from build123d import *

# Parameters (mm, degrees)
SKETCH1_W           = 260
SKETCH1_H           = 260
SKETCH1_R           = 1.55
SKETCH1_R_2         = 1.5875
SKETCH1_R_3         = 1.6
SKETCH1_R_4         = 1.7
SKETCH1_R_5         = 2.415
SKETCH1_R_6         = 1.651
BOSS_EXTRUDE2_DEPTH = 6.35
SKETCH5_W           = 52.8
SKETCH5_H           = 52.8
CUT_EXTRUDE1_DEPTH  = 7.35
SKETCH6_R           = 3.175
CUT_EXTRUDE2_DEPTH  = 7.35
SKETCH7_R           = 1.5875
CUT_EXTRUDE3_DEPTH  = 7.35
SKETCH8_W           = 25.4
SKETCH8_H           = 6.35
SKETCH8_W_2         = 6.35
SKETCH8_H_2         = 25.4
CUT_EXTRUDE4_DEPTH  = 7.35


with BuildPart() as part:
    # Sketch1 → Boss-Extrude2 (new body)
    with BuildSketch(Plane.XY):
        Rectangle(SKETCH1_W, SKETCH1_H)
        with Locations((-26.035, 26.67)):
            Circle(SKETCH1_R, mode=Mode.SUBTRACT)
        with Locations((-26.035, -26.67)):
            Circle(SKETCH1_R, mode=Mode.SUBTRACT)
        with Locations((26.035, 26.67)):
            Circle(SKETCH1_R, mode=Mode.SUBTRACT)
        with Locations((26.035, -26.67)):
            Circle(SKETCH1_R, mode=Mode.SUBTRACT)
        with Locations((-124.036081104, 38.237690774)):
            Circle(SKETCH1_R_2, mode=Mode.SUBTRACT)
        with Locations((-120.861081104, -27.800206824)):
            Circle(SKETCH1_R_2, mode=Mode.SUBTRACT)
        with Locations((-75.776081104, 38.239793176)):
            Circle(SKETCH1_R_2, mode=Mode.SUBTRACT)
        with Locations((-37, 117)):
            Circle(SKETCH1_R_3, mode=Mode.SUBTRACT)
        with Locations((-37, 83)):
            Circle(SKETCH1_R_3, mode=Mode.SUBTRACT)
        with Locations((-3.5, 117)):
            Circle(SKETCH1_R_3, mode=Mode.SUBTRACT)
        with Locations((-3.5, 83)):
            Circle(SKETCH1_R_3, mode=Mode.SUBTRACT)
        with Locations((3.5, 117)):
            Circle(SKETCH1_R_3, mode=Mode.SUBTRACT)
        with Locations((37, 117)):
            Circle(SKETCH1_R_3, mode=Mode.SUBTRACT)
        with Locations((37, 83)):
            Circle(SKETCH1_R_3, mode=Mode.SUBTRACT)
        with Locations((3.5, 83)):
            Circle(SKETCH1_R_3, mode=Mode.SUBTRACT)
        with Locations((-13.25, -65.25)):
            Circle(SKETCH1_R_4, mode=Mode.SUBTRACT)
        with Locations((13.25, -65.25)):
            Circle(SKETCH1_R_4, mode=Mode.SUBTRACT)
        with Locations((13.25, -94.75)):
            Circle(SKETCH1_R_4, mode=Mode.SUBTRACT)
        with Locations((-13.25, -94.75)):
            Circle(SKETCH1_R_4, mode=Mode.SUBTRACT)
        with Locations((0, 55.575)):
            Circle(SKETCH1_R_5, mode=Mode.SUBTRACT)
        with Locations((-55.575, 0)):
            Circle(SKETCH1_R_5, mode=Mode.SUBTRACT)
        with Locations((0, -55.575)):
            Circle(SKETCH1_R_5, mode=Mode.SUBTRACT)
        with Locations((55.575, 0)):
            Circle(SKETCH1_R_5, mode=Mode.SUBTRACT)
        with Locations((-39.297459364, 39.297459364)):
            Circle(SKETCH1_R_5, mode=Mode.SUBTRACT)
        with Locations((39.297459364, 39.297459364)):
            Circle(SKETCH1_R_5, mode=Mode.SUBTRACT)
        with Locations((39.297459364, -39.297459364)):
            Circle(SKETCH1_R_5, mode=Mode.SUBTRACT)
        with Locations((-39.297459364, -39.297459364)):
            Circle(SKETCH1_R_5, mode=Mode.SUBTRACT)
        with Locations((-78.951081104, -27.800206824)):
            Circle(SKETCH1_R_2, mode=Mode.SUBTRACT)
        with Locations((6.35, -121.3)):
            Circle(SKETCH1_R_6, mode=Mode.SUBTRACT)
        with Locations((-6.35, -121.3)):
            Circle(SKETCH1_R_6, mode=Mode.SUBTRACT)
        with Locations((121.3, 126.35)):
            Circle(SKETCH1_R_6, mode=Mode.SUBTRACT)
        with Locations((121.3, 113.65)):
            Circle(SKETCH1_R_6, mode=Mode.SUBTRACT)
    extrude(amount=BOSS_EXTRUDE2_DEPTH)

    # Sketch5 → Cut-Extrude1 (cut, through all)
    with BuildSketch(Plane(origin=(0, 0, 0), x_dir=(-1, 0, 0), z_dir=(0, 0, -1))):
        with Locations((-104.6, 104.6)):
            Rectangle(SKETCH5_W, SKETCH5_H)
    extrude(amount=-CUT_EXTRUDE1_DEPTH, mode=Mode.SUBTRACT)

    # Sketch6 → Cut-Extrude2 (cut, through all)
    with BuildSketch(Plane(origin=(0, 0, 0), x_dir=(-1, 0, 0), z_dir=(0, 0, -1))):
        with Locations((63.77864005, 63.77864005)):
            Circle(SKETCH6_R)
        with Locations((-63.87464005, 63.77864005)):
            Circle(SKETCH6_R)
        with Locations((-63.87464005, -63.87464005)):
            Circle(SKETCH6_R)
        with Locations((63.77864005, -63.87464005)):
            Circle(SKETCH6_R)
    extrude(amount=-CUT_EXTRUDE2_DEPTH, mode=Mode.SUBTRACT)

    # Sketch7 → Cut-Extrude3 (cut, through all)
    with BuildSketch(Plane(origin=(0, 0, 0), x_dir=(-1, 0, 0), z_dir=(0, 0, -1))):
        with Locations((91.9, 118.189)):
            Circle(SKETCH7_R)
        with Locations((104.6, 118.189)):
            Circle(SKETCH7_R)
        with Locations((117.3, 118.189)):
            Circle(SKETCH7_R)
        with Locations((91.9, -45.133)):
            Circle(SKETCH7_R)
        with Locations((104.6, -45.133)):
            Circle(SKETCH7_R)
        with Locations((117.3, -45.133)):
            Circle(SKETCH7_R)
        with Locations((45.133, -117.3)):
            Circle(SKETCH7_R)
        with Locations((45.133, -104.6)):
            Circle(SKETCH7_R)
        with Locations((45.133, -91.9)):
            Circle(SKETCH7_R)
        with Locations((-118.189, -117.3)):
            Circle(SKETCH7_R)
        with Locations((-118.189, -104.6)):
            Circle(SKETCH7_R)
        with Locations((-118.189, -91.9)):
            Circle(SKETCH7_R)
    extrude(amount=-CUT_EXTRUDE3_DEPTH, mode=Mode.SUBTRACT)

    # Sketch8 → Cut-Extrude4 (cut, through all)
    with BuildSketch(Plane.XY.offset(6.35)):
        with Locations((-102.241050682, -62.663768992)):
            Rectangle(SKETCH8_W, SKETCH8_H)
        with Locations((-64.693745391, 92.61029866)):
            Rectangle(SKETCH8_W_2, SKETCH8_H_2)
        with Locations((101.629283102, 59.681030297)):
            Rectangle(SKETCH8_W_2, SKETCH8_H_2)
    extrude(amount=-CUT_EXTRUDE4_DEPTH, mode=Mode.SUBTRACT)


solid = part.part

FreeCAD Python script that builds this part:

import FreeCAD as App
import Part
import Sketcher

V = App.Vector

doc = App.newDocument("Part")
body = doc.addObject("PartDesign::Body", "Body")

# Sketch on XY plane
sketch1 = body.newObject("Sketcher::SketchObject", "Sketch")
sketch1.AttachmentSupport = (doc.getObject("XY_Plane"), [""])
sketch1.MapMode = "FlatFace"
sketch1.addGeometry([
    Part.LineSegment(V(-130, 130, 0), V(-130, -130, 0)),  # 0
    Part.LineSegment(V(-130, -130, 0), V(130, -130, 0)),  # 1
    Part.LineSegment(V(130, -130, 0), V(130, 130, 0)),  # 2
    Part.LineSegment(V(130, 130, 0), V(-130, 130, 0)),  # 3
    Part.Circle(V(-6.35, -121.3, 0), V(0, 0, 1), 1.651),  # 4
    Part.Circle(V(-13.25, -94.75, 0), V(0, 0, 1), 1.7),  # 5
    Part.Circle(V(-13.25, -65.25, 0), V(0, 0, 1), 1.7),  # 6
    Part.Circle(V(-120.861081, -27.800207, 0), V(0, 0, 1), 1.5875),  # 7
    Part.Circle(V(-78.951081, -27.800207, 0), V(0, 0, 1), 1.5875),  # 8
    Part.Circle(V(-39.297459, -39.297459, 0), V(0, 0, 1), 2.415),  # 9
    Part.Circle(V(-55.575, 0, 0), V(0, 0, 1), 2.415),  # 10
    Part.Circle(V(-26.035, -26.67, 0), V(0, 0, 1), 1.55),  # 11
    Part.Circle(V(6.35, -121.3, 0), V(0, 0, 1), 1.651),  # 12
    Part.Circle(V(13.25, -94.75, 0), V(0, 0, 1), 1.7),  # 13
    Part.Circle(V(13.25, -65.25, 0), V(0, 0, 1), 1.7),  # 14
    Part.Circle(V(0, -55.575, 0), V(0, 0, 1), 2.415),  # 15
    Part.Circle(V(39.297459, -39.297459, 0), V(0, 0, 1), 2.415),  # 16
    Part.Circle(V(26.035, -26.67, 0), V(0, 0, 1), 1.55),  # 17
    Part.Circle(V(55.575, 0, 0), V(0, 0, 1), 2.415),  # 18
    Part.Circle(V(-124.036081, 38.237691, 0), V(0, 0, 1), 1.5875),  # 19
    Part.Circle(V(-75.776081, 38.239793, 0), V(0, 0, 1), 1.5875),  # 20
    Part.Circle(V(-26.035, 26.67, 0), V(0, 0, 1), 1.55),  # 21
    Part.Circle(V(-39.297459, 39.297459, 0), V(0, 0, 1), 2.415),  # 22
    Part.Circle(V(-37, 83, 0), V(0, 0, 1), 1.6),  # 23
    Part.Circle(V(-3.5, 83, 0), V(0, 0, 1), 1.6),  # 24
    Part.Circle(V(-37, 117, 0), V(0, 0, 1), 1.6),  # 25
    Part.Circle(V(-3.5, 117, 0), V(0, 0, 1), 1.6),  # 26
    Part.Circle(V(26.035, 26.67, 0), V(0, 0, 1), 1.55),  # 27
    Part.Circle(V(0, 55.575, 0), V(0, 0, 1), 2.415),  # 28
    Part.Circle(V(39.297459, 39.297459, 0), V(0, 0, 1), 2.415),  # 29
    Part.Circle(V(3.5, 83, 0), V(0, 0, 1), 1.6),  # 30
    Part.Circle(V(37, 83, 0), V(0, 0, 1), 1.6),  # 31
    Part.Circle(V(3.5, 117, 0), V(0, 0, 1), 1.6),  # 32
    Part.Circle(V(37, 117, 0), V(0, 0, 1), 1.6),  # 33
    Part.Circle(V(121.3, 113.65, 0), V(0, 0, 1), 1.651),  # 34
    Part.Circle(V(121.3, 126.35, 0), V(0, 0, 1), 1.651),  # 35
], False)
sketch1.addConstraint([
    Sketcher.Constraint("Coincident", 0, 2, 1, 1),
    Sketcher.Constraint("Coincident", 1, 2, 2, 1),
    Sketcher.Constraint("Coincident", 2, 2, 3, 1),
    Sketcher.Constraint("Coincident", 3, 2, 0, 1),
    Sketcher.Constraint("Vertical", 0),
    Sketcher.Constraint("Horizontal", 1),
    Sketcher.Constraint("Vertical", 2),
    Sketcher.Constraint("Horizontal", 3),
    Sketcher.Constraint("Equal", 5, 6),
    Sketcher.Constraint("Equal", 7, 8),
    Sketcher.Constraint("Equal", 9, 10),
    Sketcher.Constraint("Equal", 4, 12),
    Sketcher.Constraint("Equal", 6, 13),
    Sketcher.Constraint("Equal", 13, 14),
    Sketcher.Constraint("Equal", 10, 15),
    Sketcher.Constraint("Equal", 15, 16),
    Sketcher.Constraint("Equal", 11, 17),
    Sketcher.Constraint("Equal", 16, 18),
    Sketcher.Constraint("Equal", 8, 19),
    Sketcher.Constraint("Equal", 19, 20),
    Sketcher.Constraint("Equal", 17, 21),
    Sketcher.Constraint("Equal", 18, 22),
    Sketcher.Constraint("Equal", 23, 24),
    Sketcher.Constraint("Equal", 24, 25),
    Sketcher.Constraint("Equal", 25, 26),
    Sketcher.Constraint("Equal", 21, 27),
    Sketcher.Constraint("Equal", 22, 28),
    Sketcher.Constraint("Equal", 28, 29),
    Sketcher.Constraint("Equal", 26, 30),
    Sketcher.Constraint("Equal", 30, 31),
    Sketcher.Constraint("Equal", 31, 32),
    Sketcher.Constraint("Equal", 32, 33),
    Sketcher.Constraint("Equal", 12, 34),
    Sketcher.Constraint("Equal", 34, 35),
    Sketcher.Constraint("Symmetric", 10, 3, 18, 3, -1, 1),
    Sketcher.Constraint("Symmetric", 17, 3, 21, 3, -1, 1),
    Sketcher.Constraint("Symmetric", 16, 3, 22, 3, -1, 1),
    Sketcher.Constraint("Symmetric", 11, 3, 27, 3, -1, 1),
    Sketcher.Constraint("Symmetric", 15, 3, 28, 3, -1, 1),
    Sketcher.Constraint("Symmetric", 9, 3, 29, 3, -1, 1),
    Sketcher.Constraint("Symmetric", 0, 2, 2, 2, -1, 1),
    Sketcher.Constraint("Symmetric", 4, 3, 12, 3, -2),
    Sketcher.Constraint("Symmetric", 5, 3, 13, 3, -2),
    Sketcher.Constraint("Symmetric", 6, 3, 14, 3, -2),
    Sketcher.Constraint("Symmetric", 9, 3, 16, 3, -2),
    Sketcher.Constraint("Symmetric", 11, 3, 17, 3, -2),
    Sketcher.Constraint("Symmetric", 24, 3, 30, 3, -2),
    Sketcher.Constraint("Symmetric", 23, 3, 31, 3, -2),
    Sketcher.Constraint("Symmetric", 26, 3, 32, 3, -2),
    Sketcher.Constraint("Symmetric", 25, 3, 33, 3, -2),
    Sketcher.Constraint("PointOnObject", 10, 3, -1),
    Sketcher.Constraint("PointOnObject", 15, 3, -2),
    Sketcher.Constraint("Horizontal", 7, 3, 8, 3),
    Sketcher.Constraint("Horizontal", 23, 3, 24, 3),
    Sketcher.Constraint("Horizontal", 25, 3, 26, 3),
    Sketcher.Constraint("Vertical", 5, 3, 6, 3),
    Sketcher.Constraint("Vertical", 23, 3, 25, 3),
    Sketcher.Constraint("Vertical", 24, 3, 26, 3),
    Sketcher.Constraint("Vertical", 34, 3, 35, 3),
    Sketcher.Constraint("Equal", 3, 0),
    Sketcher.Constraint("Diameter", 5, 3.4),
    Sketcher.Constraint("Diameter", 11, 3.1),
    Sketcher.Constraint("Diameter", 23, 3.2),
    Sketcher.Constraint("Diameter", 9, 4.83),
    Sketcher.Constraint("DistanceX", 1, 1, 1, 2, 260.0),
    Sketcher.Constraint("Diameter", 4, 3.302),
    Sketcher.Constraint("Diameter", 7, 3.175),
    Sketcher.Constraint("DistanceX", 23, 3, -1, 1, 37.0),
    Sketcher.Constraint("DistanceY", -1, 1, 23, 3, 83.0),
    Sketcher.Constraint("DistanceY", -1, 1, 25, 3, 117.0),
    Sketcher.Constraint("DistanceX", 24, 3, 30, 3, 7.0),
    Sketcher.Constraint("DistanceY", 4, 3, -1, 1, 121.3),
    Sketcher.Constraint("DistanceX", -1, 1, 34, 3, 121.3),
    Sketcher.Constraint("DistanceX", 5, 3, 4, 3, 6.9),
    Sketcher.Constraint("DistanceY", 5, 3, 6, 3, 29.5),
    Sketcher.Constraint("DistanceX", 4, 3, 12, 3, 12.7),
    Sketcher.Constraint("DistanceY", 34, 3, 35, 3, 12.7),
    Sketcher.Constraint("DistanceY", 5, 3, -1, 1, 94.75),
    Sketcher.Constraint("DistanceY", 11, 3, -1, 1, 26.67),
    Sketcher.Constraint("DistanceY", -1, 1, 34, 3, 113.65),
    Sketcher.Constraint("DistanceX", 7, 3, 8, 3, 41.91),
    Sketcher.Constraint("DistanceX", 10, 3, 11, 3, 29.54),
    Sketcher.Constraint("DistanceX", 11, 3, 17, 3, 52.07),
    Sketcher.Constraint("DistanceX", 19, 3, 20, 3, 48.26),
    Sketcher.Constraint("DistanceY", 8, 3, 20, 3, 66.04),
    Sketcher.Constraint("DistanceY", 15, 3, -1, 1, 55.575),
    Sketcher.Constraint("DistanceX", 19, 3, 7, 3, 3.175),
    Sketcher.Constraint("DistanceX", 7, 3, -1, 1, 120.861081),
    Sketcher.Constraint("DistanceX", 9, 3, -1, 1, 39.297459),
    Sketcher.Constraint("DistanceY", 9, 3, -1, 1, 39.297459),
    Sketcher.Constraint("DistanceY", -1, 1, 19, 3, 38.237691),
    Sketcher.Constraint("DistanceY", 7, 3, -1, 1, 27.800207),
])
pad1 = body.newObject("PartDesign::Pad", "Pad")
pad1.Profile = sketch1
pad1.Length = 6.35

# Sketch on XY plane
sketch2 = body.newObject("Sketcher::SketchObject", "Sketch001")
sketch2.AttachmentSupport = (doc.getObject("XY_Plane"), [""])
sketch2.MapMode = "FlatFace"
sketch2.addGeometry([
    Part.LineSegment(V(131, 131, 0), V(131, 78.2, 0)),
    Part.LineSegment(V(131, 78.2, 0), V(78.2, 78.2, 0)),
    Part.LineSegment(V(78.2, 78.2, 0), V(78.2, 131, 0)),
    Part.LineSegment(V(78.2, 131, 0), V(131, 131, 0)),
], False)
sketch2.addConstraint([
    Sketcher.Constraint("Coincident", 0, 2, 1, 1),
    Sketcher.Constraint("Coincident", 1, 2, 2, 1),
    Sketcher.Constraint("Coincident", 2, 2, 3, 1),
    Sketcher.Constraint("Coincident", 3, 2, 0, 1),
    Sketcher.Constraint("Vertical", 0),
    Sketcher.Constraint("Horizontal", 1),
    Sketcher.Constraint("Vertical", 2),
    Sketcher.Constraint("Horizontal", 3),
    Sketcher.Constraint("Equal", 3, 0),
    Sketcher.Constraint("DistanceX", 1, 2, 1, 1, 52.8),
    Sketcher.Constraint("DistanceX", -1, 1, 0, 2, 131.0),
    Sketcher.Constraint("DistanceY", -1, 1, 2, 2, 131.0),
])
pocket1 = body.newObject("PartDesign::Pocket", "Pocket")
pocket1.Profile = sketch2
pocket1.Type = "ThroughAll"
pocket1.Reversed = True

# Sketch on XY plane
sketch3 = body.newObject("Sketcher::SketchObject", "Sketch002")
sketch3.AttachmentSupport = (doc.getObject("XY_Plane"), [""])
sketch3.MapMode = "FlatFace"
sketch3.addGeometry([
    Part.Circle(V(-63.77864, 63.77864, 0), V(0, 0, 1), 3.175),
    Part.Circle(V(63.87464, 63.77864, 0), V(0, 0, 1), 3.175),
    Part.Circle(V(63.87464, -63.87464, 0), V(0, 0, 1), 3.175),
    Part.Circle(V(-63.77864, -63.87464, 0), V(0, 0, 1), 3.175),
], False)
sketch3.addConstraint([
    Sketcher.Constraint("Equal", 0, 1),
    Sketcher.Constraint("Equal", 1, 2),
    Sketcher.Constraint("Equal", 2, 3),
    Sketcher.Constraint("Horizontal", 0, 3, 1, 3),
    Sketcher.Constraint("Horizontal", 2, 3, 3, 3),
    Sketcher.Constraint("Vertical", 1, 3, 2, 3),
    Sketcher.Constraint("Vertical", 0, 3, 3, 3),
    Sketcher.Constraint("Diameter", 0, 6.35),
    Sketcher.Constraint("DistanceX", 0, 3, -1, 1, 63.77864),
    Sketcher.Constraint("DistanceY", -1, 1, 0, 3, 63.77864),
    Sketcher.Constraint("DistanceX", -1, 1, 1, 3, 63.87464),
    Sketcher.Constraint("DistanceY", 2, 3, -1, 1, 63.87464),
])
pocket2 = body.newObject("PartDesign::Pocket", "Pocket001")
pocket2.Profile = sketch3
pocket2.Type = "ThroughAll"
pocket2.Reversed = True

# Sketch on XY plane
sketch4 = body.newObject("Sketcher::SketchObject", "Sketch003")
sketch4.AttachmentSupport = (doc.getObject("XY_Plane"), [""])
sketch4.MapMode = "FlatFace"
sketch4.addGeometry([
    Part.Circle(V(-91.9, 118.189, 0), V(0, 0, 1), 1.5875),  # 0
    Part.Circle(V(-104.6, 118.189, 0), V(0, 0, 1), 1.5875),  # 1
    Part.Circle(V(-117.3, 118.189, 0), V(0, 0, 1), 1.5875),  # 2
    Part.Circle(V(-91.9, -45.133, 0), V(0, 0, 1), 1.5875),  # 3
    Part.Circle(V(-104.6, -45.133, 0), V(0, 0, 1), 1.5875),  # 4
    Part.Circle(V(-117.3, -45.133, 0), V(0, 0, 1), 1.5875),  # 5
    Part.Circle(V(-45.133, -117.3, 0), V(0, 0, 1), 1.5875),  # 6
    Part.Circle(V(-45.133, -104.6, 0), V(0, 0, 1), 1.5875),  # 7
    Part.Circle(V(-45.133, -91.9, 0), V(0, 0, 1), 1.5875),  # 8
    Part.Circle(V(118.189, -117.3, 0), V(0, 0, 1), 1.5875),  # 9
    Part.Circle(V(118.189, -104.6, 0), V(0, 0, 1), 1.5875),  # 10
    Part.Circle(V(118.189, -91.9, 0), V(0, 0, 1), 1.5875),  # 11
], False)
sketch4.addConstraint([
    Sketcher.Constraint("Equal", 0, 1),
    Sketcher.Constraint("Equal", 1, 2),
    Sketcher.Constraint("Equal", 2, 3),
    Sketcher.Constraint("Equal", 3, 4),
    Sketcher.Constraint("Equal", 4, 5),
    Sketcher.Constraint("Equal", 5, 6),
    Sketcher.Constraint("Equal", 6, 7),
    Sketcher.Constraint("Equal", 7, 8),
    Sketcher.Constraint("Equal", 8, 9),
    Sketcher.Constraint("Equal", 9, 10),
    Sketcher.Constraint("Equal", 10, 11),
    Sketcher.Constraint("Horizontal", 0, 3, 1, 3),
    Sketcher.Constraint("Horizontal", 1, 3, 2, 3),
    Sketcher.Constraint("Horizontal", 3, 3, 4, 3),
    Sketcher.Constraint("Horizontal", 4, 3, 5, 3),
    Sketcher.Constraint("Horizontal", 6, 3, 9, 3),
    Sketcher.Constraint("Horizontal", 7, 3, 10, 3),
    Sketcher.Constraint("Horizontal", 8, 3, 11, 3),
    Sketcher.Constraint("Vertical", 0, 3, 3, 3),
    Sketcher.Constraint("Vertical", 1, 3, 4, 3),
    Sketcher.Constraint("Vertical", 2, 3, 5, 3),
    Sketcher.Constraint("Vertical", 6, 3, 7, 3),
    Sketcher.Constraint("Vertical", 7, 3, 8, 3),
    Sketcher.Constraint("Vertical", 9, 3, 10, 3),
    Sketcher.Constraint("Vertical", 10, 3, 11, 3),
    Sketcher.Constraint("Diameter", 0, 3.175),
    Sketcher.Constraint("DistanceX", 0, 3, -1, 1, 91.9),
    Sketcher.Constraint("DistanceX", 1, 3, -1, 1, 104.6),
    Sketcher.Constraint("DistanceX", 2, 3, -1, 1, 117.3),
    Sketcher.Constraint("DistanceY", 6, 3, -1, 1, 117.3),
    Sketcher.Constraint("DistanceY", 7, 3, -1, 1, 104.6),
    Sketcher.Constraint("DistanceY", 8, 3, -1, 1, 91.9),
    Sketcher.Constraint("DistanceY", -1, 1, 0, 3, 118.189),
    Sketcher.Constraint("DistanceY", 3, 3, -1, 1, 45.133),
    Sketcher.Constraint("DistanceX", 6, 3, -1, 1, 45.133),
    Sketcher.Constraint("DistanceX", -1, 1, 9, 3, 118.189),
])
pocket3 = body.newObject("PartDesign::Pocket", "Pocket002")
pocket3.Profile = sketch4
pocket3.Type = "ThroughAll"
pocket3.Reversed = True

# Sketch on XY plane
sketch5 = body.newObject("Sketcher::SketchObject", "Sketch004")
sketch5.AttachmentSupport = (doc.getObject("XY_Plane"), [""])
sketch5.MapMode = "FlatFace"
sketch5.AttachmentOffset = App.Placement(V(0, 0, 6.35), App.Rotation())
sketch5.addGeometry([
    Part.LineSegment(V(-114.941051, -59.488769, 0), V(-114.941051, -65.838769, 0)),  # 0
    Part.LineSegment(V(-114.941051, -65.838769, 0), V(-89.541051, -65.838769, 0)),  # 1
    Part.LineSegment(V(-89.541051, -65.838769, 0), V(-89.541051, -59.488769, 0)),  # 2
    Part.LineSegment(V(-89.541051, -59.488769, 0), V(-114.941051, -59.488769, 0)),  # 3
    Part.LineSegment(V(-67.868745, 105.310299, 0), V(-67.868745, 79.910299, 0)),  # 4
    Part.LineSegment(V(-67.868745, 79.910299, 0), V(-61.518745, 79.910299, 0)),  # 5
    Part.LineSegment(V(-61.518745, 79.910299, 0), V(-61.518745, 105.310299, 0)),  # 6
    Part.LineSegment(V(-61.518745, 105.310299, 0), V(-67.868745, 105.310299, 0)),  # 7
    Part.LineSegment(V(98.454283, 72.38103, 0), V(98.454283, 46.98103, 0)),  # 8
    Part.LineSegment(V(98.454283, 46.98103, 0), V(104.804283, 46.98103, 0)),  # 9
    Part.LineSegment(V(104.804283, 46.98103, 0), V(104.804283, 72.38103, 0)),  # 10
    Part.LineSegment(V(104.804283, 72.38103, 0), V(98.454283, 72.38103, 0)),  # 11
], False)
sketch5.addConstraint([
    Sketcher.Constraint("Coincident", 0, 2, 1, 1),
    Sketcher.Constraint("Coincident", 1, 2, 2, 1),
    Sketcher.Constraint("Coincident", 2, 2, 3, 1),
    Sketcher.Constraint("Coincident", 3, 2, 0, 1),
    Sketcher.Constraint("Coincident", 4, 2, 5, 1),
    Sketcher.Constraint("Coincident", 5, 2, 6, 1),
    Sketcher.Constraint("Coincident", 6, 2, 7, 1),
    Sketcher.Constraint("Coincident", 7, 2, 4, 1),
    Sketcher.Constraint("Coincident", 8, 2, 9, 1),
    Sketcher.Constraint("Coincident", 9, 2, 10, 1),
    Sketcher.Constraint("Coincident", 10, 2, 11, 1),
    Sketcher.Constraint("Coincident", 11, 2, 8, 1),
    Sketcher.Constraint("Vertical", 0),
    Sketcher.Constraint("Horizontal", 1),
    Sketcher.Constraint("Vertical", 2),
    Sketcher.Constraint("Horizontal", 3),
    Sketcher.Constraint("Vertical", 4),
    Sketcher.Constraint("Horizontal", 5),
    Sketcher.Constraint("Vertical", 6),
    Sketcher.Constraint("Horizontal", 7),
    Sketcher.Constraint("Vertical", 8),
    Sketcher.Constraint("Horizontal", 9),
    Sketcher.Constraint("Vertical", 10),
    Sketcher.Constraint("Horizontal", 11),
    Sketcher.Constraint("Equal", 7, 9),
    Sketcher.Constraint("Equal", 11, 0),
    Sketcher.Constraint("Equal", 3, 4),
    Sketcher.Constraint("Equal", 6, 8),
    Sketcher.Constraint("DistanceX", 1, 1, 1, 2, 25.4),
    Sketcher.Constraint("DistanceX", 5, 1, 5, 2, 6.35),
    Sketcher.Constraint("DistanceY", -1, 1, 4, 2, 79.910299),
    Sketcher.Constraint("DistanceY", 2, 2, 8, 2, 106.469799),
    Sketcher.Constraint("DistanceX", 0, 2, -1, 1, 114.941051),
    Sketcher.Constraint("DistanceY", 0, 2, -1, 1, 65.838769),
    Sketcher.Constraint("DistanceX", 5, 2, 8, 2, 159.973028),
    Sketcher.Constraint("DistanceX", 4, 2, -1, 1, 67.868745),
])
pocket4 = body.newObject("PartDesign::Pocket", "Pocket003")
pocket4.Profile = sketch5
pocket4.Type = "ThroughAll"

doc.recompute()
